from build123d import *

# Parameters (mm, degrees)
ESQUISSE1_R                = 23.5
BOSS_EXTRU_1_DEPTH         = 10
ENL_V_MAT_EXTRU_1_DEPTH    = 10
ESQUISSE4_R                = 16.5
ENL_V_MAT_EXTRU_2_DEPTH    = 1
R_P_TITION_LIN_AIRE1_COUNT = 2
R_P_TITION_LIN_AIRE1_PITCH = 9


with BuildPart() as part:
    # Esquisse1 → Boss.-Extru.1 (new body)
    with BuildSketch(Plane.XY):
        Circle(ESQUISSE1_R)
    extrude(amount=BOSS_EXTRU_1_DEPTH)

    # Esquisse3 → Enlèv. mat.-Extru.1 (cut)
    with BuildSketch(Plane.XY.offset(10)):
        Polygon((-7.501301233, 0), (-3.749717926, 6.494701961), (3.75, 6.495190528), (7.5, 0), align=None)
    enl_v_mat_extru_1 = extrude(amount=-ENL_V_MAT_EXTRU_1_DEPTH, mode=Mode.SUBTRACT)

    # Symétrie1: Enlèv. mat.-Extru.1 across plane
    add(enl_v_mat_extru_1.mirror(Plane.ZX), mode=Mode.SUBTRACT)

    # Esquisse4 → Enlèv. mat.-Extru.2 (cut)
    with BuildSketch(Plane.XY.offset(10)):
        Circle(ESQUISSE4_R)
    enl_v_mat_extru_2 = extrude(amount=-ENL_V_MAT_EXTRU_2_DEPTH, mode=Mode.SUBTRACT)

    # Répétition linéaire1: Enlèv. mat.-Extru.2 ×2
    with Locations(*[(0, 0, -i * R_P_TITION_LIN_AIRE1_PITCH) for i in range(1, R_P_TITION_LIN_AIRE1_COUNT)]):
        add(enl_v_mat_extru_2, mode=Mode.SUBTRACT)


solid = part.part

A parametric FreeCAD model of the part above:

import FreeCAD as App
import Part
import Sketcher

V = App.Vector
Q = App.Units.Quantity


def add_polygon(sketch, points):
    """Adds a closed chain of lines whose ends are joined by coincident constraints."""
    first, n = sketch.GeometryCount, len(points)
    for a, b in zip(points, points[1:] + points[:1]):
        sketch.addGeometry(Part.LineSegment(App.Vector(*a, 0), App.Vector(*b, 0)), False)
    for i in range(n):
        sketch.addConstraint(Sketcher.Constraint("Coincident", first + i, 2, first + (i + 1) % n, 1))

doc = App.newDocument("Part")
params = doc.addObject("Spreadsheet::Sheet", "Params")
for row, (alias, value) in enumerate([
    ("sketch1_diameter", "47 mm"),
    ("pad1_length", "10 mm"),
    ("sketch2_length", "7.5 mm"),
    ("pocket1_length", "10 mm"),
    ("sketch3_diameter", "33 mm"),
    ("pocket2_length", "1 mm"),
    ("linearpattern_pitch", "9 mm"),
], start=1):
    params.set(f"A{row}", alias)
    params.set(f"B{row}", "=" + value)
    params.setAlias(f"B{row}", alias)

body = doc.addObject("PartDesign::Body", "Body")

sketch1 = body.newObject("Sketcher::SketchObject", "Sketch")
sketch1.AttachmentSupport = (doc.getObject("XY_Plane"), [""])
sketch1.MapMode = "FlatFace"
sketch1.addGeometry(Part.Circle(V(0, 0, 0), V(0, 0, 1), 24), False)
sketch1.addConstraint(Sketcher.Constraint("Coincident", 0, 3, -1, 1))
sketch1.addConstraint(Sketcher.Constraint("Diameter", 0, Q("47 mm")))
sketch1.setExpression("Constraints[1]", "Params.sketch1_diameter")
pad1 = body.newObject("PartDesign::Pad", "Pad")
pad1.Profile = sketch1
pad1.setExpression("Length", "Params.pad1_length")

sketch2 = body.newObject("Sketcher::SketchObject", "Sketch001")
sketch2.AttachmentSupport = (doc.getObject("XY_Plane"), [""])
sketch2.MapMode = "FlatFace"
sketch2.AttachmentOffset = App.Placement(V(0, 0, 10), App.Rotation())
add_polygon(sketch2, [(-4, 6), (-8, 0), (8, 0), (4, 6)])
sketch2.addConstraint(Sketcher.Constraint("Horizontal", 1))
sketch2.addConstraint(Sketcher.Constraint("PointOnObject", 0, 2, -1))
sketch2.addConstraint(Sketcher.Constraint("Angle", 2, Q("120 deg")))
sketch2.addConstraint(Sketcher.Constraint("Distance", 2, Q("7.5 mm")))
sketch2.addConstraint(Sketcher.Constraint("DistanceX", -1, 1, 1, 2, Q("7.5 mm")))
sketch2.addConstraint(Sketcher.Constraint("DistanceX", 1, 1, 1, 2, Q("15.001301 mm")))
sketch2.addConstraint(Sketcher.Constraint("DistanceY", -1, 1, 3, 2, Q("6.494702 mm")))
sketch2.addConstraint(Sketcher.Constraint("Distance", 0, Q("7.500369 mm")))
sketch2.setExpression("Constraints[7]", "Params.sketch2_length")
pocket1 = body.newObject("PartDesign::Pocket", "Pocket")
pocket1.Profile = sketch2
pocket1.setExpression("Length", "Params.pocket1_length")
doc.recompute()

mirrored = body.newObject("PartDesign::Mirrored", "Mirrored")
mirrored.Originals = [pocket1]
mirrored.MirrorPlane = (doc.getObject("XZ_Plane"), [""])
body.Tip = mirrored

sketch3 = body.newObject("Sketcher::SketchObject", "Sketch002")
sketch3.AttachmentSupport = (doc.getObject("XY_Plane"), [""])
sketch3.MapMode = "FlatFace"
sketch3.AttachmentOffset = App.Placement(V(0, 0, 10), App.Rotation())
sketch3.addGeometry(Part.Circle(V(0, 0, 0), V(0, 0, 1), 16), False)
sketch3.addConstraint(Sketcher.Constraint("Coincident", 0, 3, -1, 1))
sketch3.addConstraint(Sketcher.Constraint("Diameter", 0, Q("33 mm")))
sketch3.setExpression("Constraints[1]", "Params.sketch3_diameter")
pocket2 = body.newObject("PartDesign::Pocket", "Pocket001")
pocket2.Profile = sketch3
pocket2.setExpression("Length", "Params.pocket2_length")
doc.recompute()

linearpattern = body.newObject("PartDesign::LinearPattern", "LinearPattern")
linearpattern.Originals = [pocket2]
linearpattern.Direction = (doc.getObject("Z_Axis"), [""])
linearpattern.Mode = "offset"
linearpattern.setExpression("Offset", "Params.linearpattern_pitch")
linearpattern.Occurrences = 2
linearpattern.Reversed = True
body.Tip = linearpattern

doc.recompute()
